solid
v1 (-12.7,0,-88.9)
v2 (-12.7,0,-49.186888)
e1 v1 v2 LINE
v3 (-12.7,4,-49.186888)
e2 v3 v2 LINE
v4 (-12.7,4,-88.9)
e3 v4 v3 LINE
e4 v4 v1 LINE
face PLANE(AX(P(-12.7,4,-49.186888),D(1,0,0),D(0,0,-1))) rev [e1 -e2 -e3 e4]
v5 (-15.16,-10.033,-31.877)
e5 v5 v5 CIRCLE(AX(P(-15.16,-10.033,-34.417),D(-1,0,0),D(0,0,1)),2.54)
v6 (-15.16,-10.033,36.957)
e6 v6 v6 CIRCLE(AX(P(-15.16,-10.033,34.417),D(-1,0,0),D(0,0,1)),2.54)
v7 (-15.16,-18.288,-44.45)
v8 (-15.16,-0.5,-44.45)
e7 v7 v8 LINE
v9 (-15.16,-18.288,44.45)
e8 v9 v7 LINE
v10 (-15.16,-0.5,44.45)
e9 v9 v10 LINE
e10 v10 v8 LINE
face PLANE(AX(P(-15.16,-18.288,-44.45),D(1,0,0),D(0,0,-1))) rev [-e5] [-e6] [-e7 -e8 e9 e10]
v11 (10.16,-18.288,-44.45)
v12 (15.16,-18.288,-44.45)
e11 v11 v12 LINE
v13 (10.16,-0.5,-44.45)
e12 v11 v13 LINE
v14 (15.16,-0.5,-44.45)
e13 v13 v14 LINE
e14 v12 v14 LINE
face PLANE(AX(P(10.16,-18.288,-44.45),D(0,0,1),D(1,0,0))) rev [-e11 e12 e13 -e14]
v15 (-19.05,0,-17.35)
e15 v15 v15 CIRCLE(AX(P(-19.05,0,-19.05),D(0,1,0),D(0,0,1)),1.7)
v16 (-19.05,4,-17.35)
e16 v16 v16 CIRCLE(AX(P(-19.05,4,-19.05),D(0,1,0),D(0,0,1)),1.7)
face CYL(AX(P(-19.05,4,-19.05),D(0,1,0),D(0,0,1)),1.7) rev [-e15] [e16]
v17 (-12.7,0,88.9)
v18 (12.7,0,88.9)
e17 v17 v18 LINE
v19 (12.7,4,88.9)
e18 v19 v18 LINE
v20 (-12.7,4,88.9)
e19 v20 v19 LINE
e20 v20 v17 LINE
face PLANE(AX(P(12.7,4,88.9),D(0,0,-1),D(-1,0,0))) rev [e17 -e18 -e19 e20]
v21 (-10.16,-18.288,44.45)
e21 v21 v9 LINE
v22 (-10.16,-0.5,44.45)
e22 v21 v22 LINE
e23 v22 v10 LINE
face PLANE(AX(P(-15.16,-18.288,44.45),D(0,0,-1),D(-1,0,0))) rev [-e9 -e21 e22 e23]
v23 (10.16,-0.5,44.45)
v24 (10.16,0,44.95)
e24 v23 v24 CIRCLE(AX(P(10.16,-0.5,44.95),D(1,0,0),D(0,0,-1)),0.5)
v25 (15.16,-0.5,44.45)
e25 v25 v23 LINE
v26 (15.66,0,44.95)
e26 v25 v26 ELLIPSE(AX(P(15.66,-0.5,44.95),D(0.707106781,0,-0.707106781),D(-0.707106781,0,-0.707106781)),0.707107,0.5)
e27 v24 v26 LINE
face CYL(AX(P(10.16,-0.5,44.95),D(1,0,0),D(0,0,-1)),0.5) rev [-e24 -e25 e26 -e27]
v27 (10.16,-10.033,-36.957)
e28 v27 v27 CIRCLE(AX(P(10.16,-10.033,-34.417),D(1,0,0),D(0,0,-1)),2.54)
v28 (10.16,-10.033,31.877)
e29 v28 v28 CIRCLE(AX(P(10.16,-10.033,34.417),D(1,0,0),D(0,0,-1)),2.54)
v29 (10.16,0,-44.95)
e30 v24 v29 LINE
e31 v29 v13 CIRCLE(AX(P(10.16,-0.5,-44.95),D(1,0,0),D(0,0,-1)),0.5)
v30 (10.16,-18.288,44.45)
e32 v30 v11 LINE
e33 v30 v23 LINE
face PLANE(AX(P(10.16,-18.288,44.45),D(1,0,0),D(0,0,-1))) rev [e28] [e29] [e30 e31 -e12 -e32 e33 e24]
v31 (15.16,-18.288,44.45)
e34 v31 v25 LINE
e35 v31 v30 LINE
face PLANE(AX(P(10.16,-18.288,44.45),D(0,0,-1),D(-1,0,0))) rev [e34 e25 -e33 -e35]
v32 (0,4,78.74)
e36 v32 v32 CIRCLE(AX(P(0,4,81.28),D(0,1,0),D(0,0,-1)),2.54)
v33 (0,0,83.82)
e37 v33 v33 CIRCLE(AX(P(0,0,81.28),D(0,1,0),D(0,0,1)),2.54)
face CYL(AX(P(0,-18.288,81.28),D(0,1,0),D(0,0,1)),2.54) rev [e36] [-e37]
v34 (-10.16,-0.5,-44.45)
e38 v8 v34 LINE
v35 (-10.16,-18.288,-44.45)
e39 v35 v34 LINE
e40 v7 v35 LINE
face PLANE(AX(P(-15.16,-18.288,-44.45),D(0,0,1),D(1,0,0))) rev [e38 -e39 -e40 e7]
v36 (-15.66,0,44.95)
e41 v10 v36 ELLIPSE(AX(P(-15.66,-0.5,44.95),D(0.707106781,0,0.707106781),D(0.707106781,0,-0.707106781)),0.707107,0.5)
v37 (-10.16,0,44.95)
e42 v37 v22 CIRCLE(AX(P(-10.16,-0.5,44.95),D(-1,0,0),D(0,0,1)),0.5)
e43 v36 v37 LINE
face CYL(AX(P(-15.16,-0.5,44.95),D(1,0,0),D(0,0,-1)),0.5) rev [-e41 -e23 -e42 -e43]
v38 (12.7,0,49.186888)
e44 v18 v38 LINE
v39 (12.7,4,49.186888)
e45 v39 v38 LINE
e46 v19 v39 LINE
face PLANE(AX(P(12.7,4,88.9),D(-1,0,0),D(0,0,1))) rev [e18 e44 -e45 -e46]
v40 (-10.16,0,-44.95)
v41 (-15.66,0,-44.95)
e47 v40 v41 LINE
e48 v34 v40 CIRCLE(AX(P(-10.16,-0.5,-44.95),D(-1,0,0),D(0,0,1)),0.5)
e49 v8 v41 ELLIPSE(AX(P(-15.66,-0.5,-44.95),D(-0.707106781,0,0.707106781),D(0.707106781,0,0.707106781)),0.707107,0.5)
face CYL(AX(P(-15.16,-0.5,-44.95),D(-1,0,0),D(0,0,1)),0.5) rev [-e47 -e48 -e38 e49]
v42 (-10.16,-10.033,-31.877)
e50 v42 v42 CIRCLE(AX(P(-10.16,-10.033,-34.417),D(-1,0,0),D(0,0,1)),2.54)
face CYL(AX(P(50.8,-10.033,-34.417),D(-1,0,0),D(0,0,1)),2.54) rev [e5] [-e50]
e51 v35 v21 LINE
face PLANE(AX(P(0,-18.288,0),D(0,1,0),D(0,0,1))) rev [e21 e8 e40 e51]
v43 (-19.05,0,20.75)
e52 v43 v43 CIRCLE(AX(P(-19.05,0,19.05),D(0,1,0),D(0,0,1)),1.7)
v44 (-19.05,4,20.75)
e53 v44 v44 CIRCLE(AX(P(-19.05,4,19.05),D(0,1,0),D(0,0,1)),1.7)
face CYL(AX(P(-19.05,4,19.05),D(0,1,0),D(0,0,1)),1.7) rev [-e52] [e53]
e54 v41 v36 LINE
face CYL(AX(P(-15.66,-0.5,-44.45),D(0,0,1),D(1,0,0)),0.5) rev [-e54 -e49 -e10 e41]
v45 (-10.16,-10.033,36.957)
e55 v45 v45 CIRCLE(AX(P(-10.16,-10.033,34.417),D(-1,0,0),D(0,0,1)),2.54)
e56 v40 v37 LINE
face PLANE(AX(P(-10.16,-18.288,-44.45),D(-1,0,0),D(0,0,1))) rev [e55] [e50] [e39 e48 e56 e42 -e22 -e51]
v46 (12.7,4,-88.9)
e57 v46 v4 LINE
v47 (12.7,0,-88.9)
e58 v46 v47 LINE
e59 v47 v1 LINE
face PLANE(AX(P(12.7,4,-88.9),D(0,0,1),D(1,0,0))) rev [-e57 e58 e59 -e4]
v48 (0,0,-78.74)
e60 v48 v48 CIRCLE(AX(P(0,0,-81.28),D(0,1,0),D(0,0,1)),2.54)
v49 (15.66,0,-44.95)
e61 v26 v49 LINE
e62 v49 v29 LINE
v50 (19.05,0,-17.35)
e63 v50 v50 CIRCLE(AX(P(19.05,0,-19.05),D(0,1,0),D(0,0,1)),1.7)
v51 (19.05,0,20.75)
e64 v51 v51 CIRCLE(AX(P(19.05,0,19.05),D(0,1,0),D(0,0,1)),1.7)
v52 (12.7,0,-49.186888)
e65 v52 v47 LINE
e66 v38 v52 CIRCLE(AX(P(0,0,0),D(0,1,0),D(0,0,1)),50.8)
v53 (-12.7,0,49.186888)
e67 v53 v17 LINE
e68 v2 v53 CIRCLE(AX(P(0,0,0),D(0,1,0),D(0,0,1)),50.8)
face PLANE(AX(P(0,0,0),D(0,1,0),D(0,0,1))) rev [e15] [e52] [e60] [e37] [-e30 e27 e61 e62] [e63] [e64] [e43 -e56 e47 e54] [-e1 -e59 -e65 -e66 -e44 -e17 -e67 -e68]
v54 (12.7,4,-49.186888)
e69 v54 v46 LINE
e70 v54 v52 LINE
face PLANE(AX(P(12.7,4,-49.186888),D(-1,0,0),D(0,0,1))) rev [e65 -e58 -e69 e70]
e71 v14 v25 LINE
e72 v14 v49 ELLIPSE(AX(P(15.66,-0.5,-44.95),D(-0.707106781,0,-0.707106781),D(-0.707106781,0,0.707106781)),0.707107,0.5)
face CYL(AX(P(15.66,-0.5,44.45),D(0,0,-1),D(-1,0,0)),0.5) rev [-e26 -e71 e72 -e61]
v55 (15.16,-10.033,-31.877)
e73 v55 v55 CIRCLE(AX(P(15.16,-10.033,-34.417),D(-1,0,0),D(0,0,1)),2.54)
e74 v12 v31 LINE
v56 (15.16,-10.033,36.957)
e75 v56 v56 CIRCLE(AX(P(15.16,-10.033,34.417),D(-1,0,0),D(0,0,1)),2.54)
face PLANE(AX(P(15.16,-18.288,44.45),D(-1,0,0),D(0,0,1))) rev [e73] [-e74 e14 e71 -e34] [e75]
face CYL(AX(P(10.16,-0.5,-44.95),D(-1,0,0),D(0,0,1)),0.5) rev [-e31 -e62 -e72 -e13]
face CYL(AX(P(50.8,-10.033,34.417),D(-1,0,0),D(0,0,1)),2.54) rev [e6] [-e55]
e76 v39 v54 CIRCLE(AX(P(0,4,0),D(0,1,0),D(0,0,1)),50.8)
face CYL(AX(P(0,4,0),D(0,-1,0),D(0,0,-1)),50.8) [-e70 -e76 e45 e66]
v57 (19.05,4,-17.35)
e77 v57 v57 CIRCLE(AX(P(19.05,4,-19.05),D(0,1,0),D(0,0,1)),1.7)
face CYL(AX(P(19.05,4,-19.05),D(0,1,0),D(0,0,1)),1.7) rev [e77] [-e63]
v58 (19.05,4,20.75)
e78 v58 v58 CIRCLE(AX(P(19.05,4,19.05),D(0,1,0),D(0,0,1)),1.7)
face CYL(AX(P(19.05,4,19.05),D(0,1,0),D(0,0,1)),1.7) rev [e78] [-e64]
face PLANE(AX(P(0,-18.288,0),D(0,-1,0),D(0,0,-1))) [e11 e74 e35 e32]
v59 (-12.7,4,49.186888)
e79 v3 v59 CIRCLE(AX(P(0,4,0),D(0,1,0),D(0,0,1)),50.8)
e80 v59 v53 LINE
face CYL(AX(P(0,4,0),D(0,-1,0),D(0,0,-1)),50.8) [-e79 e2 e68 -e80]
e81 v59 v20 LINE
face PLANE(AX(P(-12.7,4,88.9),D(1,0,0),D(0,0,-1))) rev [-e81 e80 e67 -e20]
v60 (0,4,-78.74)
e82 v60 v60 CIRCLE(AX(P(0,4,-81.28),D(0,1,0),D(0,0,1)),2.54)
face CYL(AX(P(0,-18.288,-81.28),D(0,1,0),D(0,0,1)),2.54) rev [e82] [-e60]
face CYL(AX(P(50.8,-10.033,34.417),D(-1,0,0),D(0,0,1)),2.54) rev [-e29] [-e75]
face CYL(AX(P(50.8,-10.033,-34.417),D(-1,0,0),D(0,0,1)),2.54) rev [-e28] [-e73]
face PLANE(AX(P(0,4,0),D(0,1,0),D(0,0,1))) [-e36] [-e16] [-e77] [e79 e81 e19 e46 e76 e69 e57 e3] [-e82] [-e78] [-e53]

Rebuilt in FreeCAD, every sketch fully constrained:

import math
import FreeCAD as App
import Part
import Sketcher
Q = App.Units.Quantity


def edges_at(feature, points):
    """Names of the edges that pass closest to the given points."""
    edges = feature.Shape.Edges
    near = lambda p: min(range(len(edges)), key=lambda i: edges[i].distToShape(Part.Vertex(*p))[0])
    return sorted({f"Edge{near(p) + 1}" for p in points})

doc = App.newDocument("Part")
body = doc.addObject("PartDesign::Body", "Body")

sketch1 = doc.addObject("Sketcher::SketchObject", "Sketch")
body.addObject(sketch1)
sketch1.AttachmentSupport = (doc.XZ_Plane, [""])
sketch1.MapMode = "FlatFace"
sketch1.addGeometry([
    Part.LineSegment(App.Vector(-13, -89, 0), App.Vector(-13, -49, 0)),
    Part.ArcOfCircle(Part.Circle(App.Vector(0, 0, 0), App.Vector(0, 0, 1), 51), math.radians(104), math.radians(256)),
    Part.LineSegment(App.Vector(-13, 49, 0), App.Vector(-13, 89, 0)),
    Part.LineSegment(App.Vector(-13, 89, 0), App.Vector(13, 89, 0)),
    Part.LineSegment(App.Vector(13, 89, 0), App.Vector(13, 49, 0)),
    Part.ArcOfCircle(Part.Circle(App.Vector(0, 0, 0), App.Vector(0, 0, 1), 51), math.radians(-76), math.radians(76)),
    Part.LineSegment(App.Vector(13, -49, 0), App.Vector(13, -89, 0)),
    Part.LineSegment(App.Vector(13, -89, 0), App.Vector(-13, -89, 0)),
], False)
sketch1.addConstraint([
    Sketcher.Constraint("Coincident", 0, 2, 1, 2),
    Sketcher.Constraint("Coincident", 1, 1, 2, 1),
    Sketcher.Constraint("Coincident", 2, 2, 3, 1),
    Sketcher.Constraint("Coincident", 3, 2, 4, 1),
    Sketcher.Constraint("Coincident", 4, 2, 5, 2),
    Sketcher.Constraint("Coincident", 5, 1, 6, 1),
    Sketcher.Constraint("Coincident", 6, 2, 7, 1),
    Sketcher.Constraint("Coincident", 7, 2, 0, 1),
    Sketcher.Constraint("Vertical", 0),
    Sketcher.Constraint("Vertical", 2),
    Sketcher.Constraint("Horizontal", 3),
    Sketcher.Constraint("Vertical", 4),
    Sketcher.Constraint("Vertical", 6),
    Sketcher.Constraint("Horizontal", 7),
    Sketcher.Constraint("Coincident", 1, 3, -1, 1),
    Sketcher.Constraint("Coincident", 5, 3, -1, 1),
    Sketcher.Constraint("Equal", 1, 5),
    Sketcher.Constraint("Symmetric", 2, 2, 6, 2, -1, 1),
    Sketcher.Constraint("Horizontal", 1, 1, 4, 2),
    Sketcher.Constraint("Horizontal", 0, 2, 5, 1),
    Sketcher.Constraint("Radius", 1, Q("2 in")),
    Sketcher.Constraint("DistanceX", 3, 1, 3, 2, Q("1 in")),
    Sketcher.Constraint("DistanceY", -1, 1, 2, 2, Q("3.5 in")),
])
pad1 = doc.addObject("PartDesign::Pad", "Pad")
body.addObject(pad1)
pad1.Profile = sketch1
pad1.Length = 4
pad1.Reversed = True

sketch2 = doc.addObject("Sketcher::SketchObject", "Sketch001")
body.addObject(sketch2)
sketch2.AttachmentSupport = (doc.XZ_Plane, [""])
sketch2.MapMode = "FlatFace"
sketch2.addGeometry([
    Part.LineSegment(App.Vector(-10, -44, 0), App.Vector(-10, 44, 0)),
    Part.LineSegment(App.Vector(-10, 44, 0), App.Vector(-15, 44, 0)),
    Part.LineSegment(App.Vector(-15, 44, 0), App.Vector(-15, -44, 0)),
    Part.LineSegment(App.Vector(-15, -44, 0), App.Vector(-10, -44, 0)),
    Part.LineSegment(App.Vector(15, -44, 0), App.Vector(15, 44, 0)),
    Part.LineSegment(App.Vector(15, 44, 0), App.Vector(10, 44, 0)),
    Part.LineSegment(App.Vector(10, 44, 0), App.Vector(10, -44, 0)),
    Part.LineSegment(App.Vector(10, -44, 0), App.Vector(15, -44, 0)),
], False)
sketch2.addConstraint([
    Sketcher.Constraint("Coincident", 0, 2, 1, 1),
    Sketcher.Constraint("Coincident", 1, 2, 2, 1),
    Sketcher.Constraint("Coincident", 2, 2, 3, 1),
    Sketcher.Constraint("Coincident", 3, 2, 0, 1),
    Sketcher.Constraint("Coincident", 4, 2, 5, 1),
    Sketcher.Constraint("Coincident", 5, 2, 6, 1),
    Sketcher.Constraint("Coincident", 6, 2, 7, 1),
    Sketcher.Constraint("Coincident", 7, 2, 4, 1),
    Sketcher.Constraint("Vertical", 0),
    Sketcher.Constraint("Horizontal", 1),
    Sketcher.Constraint("Vertical", 2),
    Sketcher.Constraint("Horizontal", 3),
    Sketcher.Constraint("Vertical", 4),
    Sketcher.Constraint("Horizontal", 5),
    Sketcher.Constraint("Vertical", 6),
    Sketcher.Constraint("Horizontal", 7),
    Sketcher.Constraint("Symmetric", 2, 2, 4, 2, -1, 1),
    Sketcher.Constraint("Symmetric", 0, 2, 6, 2, -1, 1),
    Sketcher.Constraint("Horizontal", 1, 2, 4, 2),
    Sketcher.Constraint("DistanceY", 0, 1, 0, 2, Q("3.5 in")),
    Sketcher.Constraint("DistanceX", 0, 2, -1, 1, Q("0.4 in")),
    Sketcher.Constraint("DistanceX", 1, 2, 1, 1, 5.0),
])
pad2 = doc.addObject("PartDesign::Pad", "Pad001")
body.addObject(pad2)
pad2.Profile = sketch2
pad2.Length = Q("0.72 in")

sketch3 = doc.addObject("Sketcher::SketchObject", "Sketch002")
body.addObject(sketch3)
sketch3.AttachmentSupport = (doc.XZ_Plane, [""])
sketch3.MapMode = "FlatFace"
sketch3.AttachmentOffset = App.Placement(App.Vector(0, 0, -4), App.Rotation())
sketch3.addGeometry([
    Part.Circle(App.Vector(-19.1, 19.1, 0), App.Vector(0, 0, 1), 1.7),
    Part.Circle(App.Vector(19.1, 19.1, 0), App.Vector(0, 0, 1), 1.7),
    Part.Circle(App.Vector(-19.1, -19.1, 0), App.Vector(0, 0, 1), 1.7),
    Part.Circle(App.Vector(19.1, -19.1, 0), App.Vector(0, 0, 1), 1.7),
], False)
sketch3.addConstraint([
    Sketcher.Constraint("Equal", 0, 1),
    Sketcher.Constraint("Equal", 1, 2),
    Sketcher.Constraint("Equal", 2, 3),
    Sketcher.Constraint("Symmetric", 1, 3, 2, 3, -1, 1),
    Sketcher.Constraint("Symmetric", 0, 3, 3, 3, -1, 1),
    Sketcher.Constraint("Symmetric", 0, 3, 1, 3, -2),
    Sketcher.Constraint("DistanceX", 0, 3, 1, 3, Q("1.5 in")),
    Sketcher.Constraint("DistanceY", 2, 3, 0, 3, Q("1.5 in")),
    Sketcher.Constraint("Diameter", 0, 3.4),
])
doc.recompute()
hole = doc.addObject("PartDesign::Hole", "Hole")
body.addObject(hole)
hole.Profile = sketch3
hole.ThreadType = "None"
hole.Diameter = 3.4
hole.DepthType = "ThroughAll"
hole.Reversed = True
doc.recompute()

fillet = doc.addObject("PartDesign::Fillet", "Fillet")
body.addObject(fillet)
fillet.Base = (hole, edges_at(hole, [
    (-15.16, 0, 0),
    (-12.66, 0, -44.45),
    (-12.66, 0, 44.45),
    (12.66, 0, -44.45),
    (15.16, 0, 0),
    (12.66, 0, 44.45),
]))
fillet.Radius = 0.5

sketch4 = doc.addObject("Sketcher::SketchObject", "Sketch003")
body.addObject(sketch4)
sketch4.AttachmentSupport = (doc.YZ_Plane, [""])
sketch4.MapMode = "FlatFace"
sketch4.AttachmentOffset = App.Placement(App.Vector(0, 0, -15.16), App.Rotation())
sketch4.addGeometry([
    Part.Circle(App.Vector(-10, 34.4, 0), App.Vector(0, 0, 1), 2.5),
    Part.Circle(App.Vector(-10, -34.4, 0), App.Vector(0, 0, 1), 2.5),
], False)
sketch4.addConstraint([
    Sketcher.Constraint("Equal", 0, 1),
    Sketcher.Constraint("Symmetric", 0, 3, 1, 3, -1),
    Sketcher.Constraint("Diameter", 0, Q("0.2 in")),
    Sketcher.Constraint("DistanceY", 1, 3, 0, 3, Q("2.71 in")),
    Sketcher.Constraint("DistanceX", 0, 3, -1, 1, Q("0.395 in")),
])
pocket1 = doc.addObject("PartDesign::Pocket", "Pocket")
body.addObject(pocket1)
pocket1.Profile = sketch4
pocket1.Type = "ThroughAll"
pocket1.Reversed = True

sketch5 = doc.addObject("Sketcher::SketchObject", "Sketch004")
body.addObject(sketch5)
sketch5.AttachmentSupport = (doc.XZ_Plane, [""])
sketch5.MapMode = "FlatFace"
sketch5.AttachmentOffset = App.Placement(App.Vector(0, 0, -4), App.Rotation())
sketch5.addGeometry([
    Part.Circle(App.Vector(0, -81.3, 0), App.Vector(0, 0, 1), 2.5),
    Part.Circle(App.Vector(0, 81.3, 0), App.Vector(0, 0, 1), 2.5),
], False)
sketch5.addConstraint([
    Sketcher.Constraint("Equal", 0, 1),
    Sketcher.Constraint("Symmetric", 0, 3, 1, 3, -1, 1),
    Sketcher.Constraint("PointOnObject", 0, 3, -2),
    Sketcher.Constraint("Diameter", 0, Q("0.2 in")),
    Sketcher.Constraint("DistanceY", 0, 3, -1, 1, Q("3.2 in")),
])
pocket2 = doc.addObject("PartDesign::Pocket", "Pocket001")
body.addObject(pocket2)
pocket2.Profile = sketch5
pocket2.Type = "ThroughAll"
pocket2.Reversed = True

doc.recompute()
